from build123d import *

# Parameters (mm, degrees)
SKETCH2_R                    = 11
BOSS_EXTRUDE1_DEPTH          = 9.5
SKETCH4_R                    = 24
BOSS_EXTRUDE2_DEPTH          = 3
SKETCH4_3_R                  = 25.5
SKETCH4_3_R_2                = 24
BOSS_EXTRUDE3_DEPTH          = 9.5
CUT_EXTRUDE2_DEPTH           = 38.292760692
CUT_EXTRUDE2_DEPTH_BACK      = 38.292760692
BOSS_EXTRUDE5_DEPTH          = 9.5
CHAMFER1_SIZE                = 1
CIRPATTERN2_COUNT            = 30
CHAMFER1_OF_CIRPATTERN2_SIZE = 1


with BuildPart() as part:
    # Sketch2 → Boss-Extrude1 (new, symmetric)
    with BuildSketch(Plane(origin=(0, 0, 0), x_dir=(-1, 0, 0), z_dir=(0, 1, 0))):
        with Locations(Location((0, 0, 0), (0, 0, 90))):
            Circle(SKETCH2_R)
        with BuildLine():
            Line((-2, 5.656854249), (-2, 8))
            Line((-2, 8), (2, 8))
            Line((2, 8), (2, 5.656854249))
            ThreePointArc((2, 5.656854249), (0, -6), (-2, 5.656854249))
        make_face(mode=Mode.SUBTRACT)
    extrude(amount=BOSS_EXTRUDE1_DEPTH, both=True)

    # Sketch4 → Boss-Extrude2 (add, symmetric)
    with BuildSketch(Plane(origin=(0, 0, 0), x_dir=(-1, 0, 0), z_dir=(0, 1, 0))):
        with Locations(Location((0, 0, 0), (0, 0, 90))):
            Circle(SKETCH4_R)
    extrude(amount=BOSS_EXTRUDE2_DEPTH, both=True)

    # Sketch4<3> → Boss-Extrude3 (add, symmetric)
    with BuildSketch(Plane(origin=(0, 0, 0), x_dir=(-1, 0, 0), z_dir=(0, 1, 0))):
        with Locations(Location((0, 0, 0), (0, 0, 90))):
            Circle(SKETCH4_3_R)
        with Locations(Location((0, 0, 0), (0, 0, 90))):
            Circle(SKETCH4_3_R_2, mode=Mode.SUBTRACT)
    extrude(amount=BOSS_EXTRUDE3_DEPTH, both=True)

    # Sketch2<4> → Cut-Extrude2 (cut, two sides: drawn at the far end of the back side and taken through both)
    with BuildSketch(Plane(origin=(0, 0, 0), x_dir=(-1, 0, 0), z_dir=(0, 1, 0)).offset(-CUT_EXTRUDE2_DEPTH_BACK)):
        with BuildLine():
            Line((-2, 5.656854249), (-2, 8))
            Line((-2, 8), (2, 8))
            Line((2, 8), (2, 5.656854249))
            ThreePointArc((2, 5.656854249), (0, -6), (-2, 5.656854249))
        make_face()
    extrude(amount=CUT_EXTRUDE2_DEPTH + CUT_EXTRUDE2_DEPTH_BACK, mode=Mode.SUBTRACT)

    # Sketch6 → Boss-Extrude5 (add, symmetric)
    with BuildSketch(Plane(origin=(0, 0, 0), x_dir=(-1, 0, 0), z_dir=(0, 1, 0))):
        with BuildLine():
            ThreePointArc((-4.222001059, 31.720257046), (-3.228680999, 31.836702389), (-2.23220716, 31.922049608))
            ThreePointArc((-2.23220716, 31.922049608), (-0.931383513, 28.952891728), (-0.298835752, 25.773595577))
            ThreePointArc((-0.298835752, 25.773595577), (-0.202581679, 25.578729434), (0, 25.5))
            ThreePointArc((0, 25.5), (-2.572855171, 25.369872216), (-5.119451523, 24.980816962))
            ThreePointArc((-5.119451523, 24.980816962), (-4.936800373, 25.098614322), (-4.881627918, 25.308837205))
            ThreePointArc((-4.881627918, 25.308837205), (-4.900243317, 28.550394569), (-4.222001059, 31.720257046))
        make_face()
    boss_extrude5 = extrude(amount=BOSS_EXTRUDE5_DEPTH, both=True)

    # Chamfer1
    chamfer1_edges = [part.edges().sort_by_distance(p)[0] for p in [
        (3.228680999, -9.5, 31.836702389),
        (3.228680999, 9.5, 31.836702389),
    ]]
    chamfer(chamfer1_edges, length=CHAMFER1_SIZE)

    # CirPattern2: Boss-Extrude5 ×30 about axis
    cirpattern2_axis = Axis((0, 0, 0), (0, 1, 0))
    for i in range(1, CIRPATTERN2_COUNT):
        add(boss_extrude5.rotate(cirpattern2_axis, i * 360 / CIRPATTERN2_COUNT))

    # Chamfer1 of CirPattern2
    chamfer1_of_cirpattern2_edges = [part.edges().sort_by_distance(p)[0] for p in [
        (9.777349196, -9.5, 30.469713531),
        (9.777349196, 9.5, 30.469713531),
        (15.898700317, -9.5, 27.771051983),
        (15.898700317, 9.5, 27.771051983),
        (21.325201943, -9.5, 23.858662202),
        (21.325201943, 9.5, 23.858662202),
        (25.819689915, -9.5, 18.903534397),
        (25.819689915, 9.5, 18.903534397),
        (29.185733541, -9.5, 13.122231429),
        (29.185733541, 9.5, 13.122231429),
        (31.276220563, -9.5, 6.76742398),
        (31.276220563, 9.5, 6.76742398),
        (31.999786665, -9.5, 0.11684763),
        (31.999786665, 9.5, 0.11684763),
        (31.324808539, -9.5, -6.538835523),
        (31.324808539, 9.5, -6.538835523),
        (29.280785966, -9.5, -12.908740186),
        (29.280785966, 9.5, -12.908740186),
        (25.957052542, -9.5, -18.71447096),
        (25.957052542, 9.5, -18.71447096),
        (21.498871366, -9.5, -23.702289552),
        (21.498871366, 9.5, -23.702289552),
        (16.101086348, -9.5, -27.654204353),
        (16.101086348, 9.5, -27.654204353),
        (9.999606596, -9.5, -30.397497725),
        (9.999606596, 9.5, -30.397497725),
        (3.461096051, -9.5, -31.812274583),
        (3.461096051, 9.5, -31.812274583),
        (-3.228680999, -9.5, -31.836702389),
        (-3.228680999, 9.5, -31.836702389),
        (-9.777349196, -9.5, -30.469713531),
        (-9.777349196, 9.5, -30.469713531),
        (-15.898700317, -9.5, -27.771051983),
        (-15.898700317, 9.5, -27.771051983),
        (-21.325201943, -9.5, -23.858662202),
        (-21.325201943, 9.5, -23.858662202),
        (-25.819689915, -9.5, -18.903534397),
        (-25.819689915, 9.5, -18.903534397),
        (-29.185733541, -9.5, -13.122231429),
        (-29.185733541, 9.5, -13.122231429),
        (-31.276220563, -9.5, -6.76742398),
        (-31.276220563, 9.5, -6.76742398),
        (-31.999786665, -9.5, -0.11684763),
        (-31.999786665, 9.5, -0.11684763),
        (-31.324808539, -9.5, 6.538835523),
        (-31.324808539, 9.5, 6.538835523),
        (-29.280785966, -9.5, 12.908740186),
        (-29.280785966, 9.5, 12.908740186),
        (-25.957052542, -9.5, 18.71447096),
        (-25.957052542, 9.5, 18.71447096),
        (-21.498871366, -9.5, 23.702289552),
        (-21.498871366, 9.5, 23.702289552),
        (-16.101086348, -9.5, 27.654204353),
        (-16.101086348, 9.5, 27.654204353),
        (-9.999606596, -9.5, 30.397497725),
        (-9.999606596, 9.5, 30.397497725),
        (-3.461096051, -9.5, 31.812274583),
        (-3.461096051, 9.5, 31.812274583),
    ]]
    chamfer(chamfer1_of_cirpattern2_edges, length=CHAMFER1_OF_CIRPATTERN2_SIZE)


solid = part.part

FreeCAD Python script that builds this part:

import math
import FreeCAD as App
import Part
import Sketcher

V = App.Vector


def edges_at(feature, points):
    """Names of the edges that pass closest to the given points."""
    edges = feature.Shape.Edges
    near = lambda p: min(range(len(edges)), key=lambda i: edges[i].distToShape(Part.Vertex(*p))[0])
    return sorted({f"Edge{near(p) + 1}" for p in points})

doc = App.newDocument("Part")
body = doc.addObject("PartDesign::Body", "Body")

sketch1 = doc.addObject("Sketcher::SketchObject", "Sketch")
body.addObject(sketch1)
sketch1.AttachmentSupport = (doc.XZ_Plane, [""])
sketch1.MapMode = "FlatFace"
sketch1.addGeometry([
    Part.Circle(V(0, 0, 0), V(0, 0, 1), 11),
    Part.ArcOfCircle(Part.Circle(V(0, 0, 0), V(0, 0, 1), 6), math.radians(109), math.radians(431)),
    Part.LineSegment(V(2, 5.7, 0), V(2, 8, 0)),
    Part.LineSegment(V(2, 8, 0), V(-2, 8, 0)),
    Part.LineSegment(V(-2, 8, 0), V(-2, 5.7, 0)),
], False)
sketch1.addConstraint([
    Sketcher.Constraint("Coincident", 1, 2, 2, 1),
    Sketcher.Constraint("Coincident", 2, 2, 3, 1),
    Sketcher.Constraint("Coincident", 3, 2, 4, 1),
    Sketcher.Constraint("Coincident", 4, 2, 1, 1),
    Sketcher.Constraint("Vertical", 2),
    Sketcher.Constraint("Horizontal", 3),
    Sketcher.Constraint("Vertical", 4),
    Sketcher.Constraint("Coincident", 0, 3, -1, 1),
    Sketcher.Constraint("Coincident", 1, 3, -1, 1),
    Sketcher.Constraint("Horizontal", 1, 2, 4, 2),
    Sketcher.Constraint("Diameter", 0, 22.0),
    Sketcher.Constraint("Radius", 1, 6.0),
    Sketcher.Constraint("DistanceX", 3, 2, 3, 1, 4.0),
    Sketcher.Constraint("DistanceY", -1, 1, 2, 2, 8.0),
])
pad1 = doc.addObject("PartDesign::Pad", "Pad")
body.addObject(pad1)
pad1.Profile = sketch1
pad1.Length = 19
pad1.Midplane = True

sketch2 = doc.addObject("Sketcher::SketchObject", "Sketch001")
body.addObject(sketch2)
sketch2.AttachmentSupport = (doc.XZ_Plane, [""])
sketch2.MapMode = "FlatFace"
sketch2.addGeometry(Part.Circle(V(0, 0, 0), V(0, 0, 1), 24), False)
sketch2.addConstraint([
    Sketcher.Constraint("Coincident", 0, 3, -1, 1),
    Sketcher.Constraint("Diameter", 0, 48.0),
])
pad2 = doc.addObject("PartDesign::Pad", "Pad001")
body.addObject(pad2)
pad2.Profile = sketch2
pad2.Length = 6
pad2.Midplane = True

sketch3 = doc.addObject("Sketcher::SketchObject", "Sketch002")
body.addObject(sketch3)
sketch3.AttachmentSupport = (doc.XZ_Plane, [""])
sketch3.MapMode = "FlatFace"
sketch3.addGeometry([
    Part.Circle(V(0, 0, 0), V(0, 0, 1), 26),
    Part.Circle(V(0, 0, 0), V(0, 0, 1), 24),
], False)
sketch3.addConstraint([
    Sketcher.Constraint("Coincident", 0, 3, -1, 1),
    Sketcher.Constraint("Coincident", 1, 3, -1, 1),
    Sketcher.Constraint("Diameter", 0, 51.0),
    Sketcher.Constraint("Diameter", 1, 48.0),
])
pad3 = doc.addObject("PartDesign::Pad", "Pad002")
body.addObject(pad3)
pad3.Profile = sketch3
pad3.Length = 19
pad3.Midplane = True

sketch4 = doc.addObject("Sketcher::SketchObject", "Sketch003")
body.addObject(sketch4)
sketch4.AttachmentSupport = (doc.XZ_Plane, [""])
sketch4.MapMode = "FlatFace"
sketch4.addGeometry([
    Part.LineSegment(V(2, 8, 0), V(2, 5.7, 0)),
    Part.ArcOfCircle(Part.Circle(V(0, 0, 0), V(0, 0, 1), 6), math.radians(109), math.radians(431)),
    Part.LineSegment(V(-2, 5.7, 0), V(-2, 8, 0)),
    Part.LineSegment(V(-2, 8, 0), V(2, 8, 0)),
], False)
sketch4.addConstraint([
    Sketcher.Constraint("Coincident", 0, 2, 1, 2),
    Sketcher.Constraint("Coincident", 1, 1, 2, 1),
    Sketcher.Constraint("Coincident", 2, 2, 3, 1),
    Sketcher.Constraint("Coincident", 3, 2, 0, 1),
    Sketcher.Constraint("Vertical", 0),
    Sketcher.Constraint("Vertical", 2),
    Sketcher.Constraint("Horizontal", 3),
    Sketcher.Constraint("Coincident", 1, 3, -1, 1),
    Sketcher.Constraint("Horizontal", 0, 2, 1, 1),
    Sketcher.Constraint("Radius", 1, 6.0),
    Sketcher.Constraint("DistanceX", 3, 1, 3, 2, 4.0),
    Sketcher.Constraint("DistanceY", -1, 1, 2, 2, 8.0),
])
pocket1 = doc.addObject("PartDesign::Pocket", "Pocket")
body.addObject(pocket1)
pocket1.Profile = sketch4
pocket1.Type = "ThroughAll"
pocket1.Midplane = True

sketch5 = doc.addObject("Sketcher::SketchObject", "Sketch004")
body.addObject(sketch5)
sketch5.AttachmentSupport = (doc.XZ_Plane, [""])
sketch5.MapMode = "FlatFace"
sketch5.addGeometry([
    Part.ArcOfCircle(Part.Circle(V(0, 0, 0), V(0, 0, 1), 32), math.radians(82.42), math.radians(86)),
    Part.ArcOfCircle(Part.Circle(V(-10.02, 27.02, 0), V(0, 0, 1), 15), math.radians(-7), math.radians(18)),
    Part.ArcOfCircle(Part.Circle(V(5.18, 25.27, 0), V(0, 0, 1), 0.3), math.radians(173), math.radians(258)),
    Part.ArcOfCircle(Part.Circle(V(0, 0, 0), V(0, 0, 1), 25.5), math.radians(78.42), math.radians(90)),
    Part.ArcOfCircle(Part.Circle(V(0, 25.8, 0), V(0, 0, 1), 0.3), math.radians(-90), math.radians(-5)),
    Part.ArcOfCircle(Part.Circle(V(15.24, 24.45, 0), V(0, 0, 1), 15), math.radians(150), math.radians(175)),
], False)
sketch5.addConstraint([
    Sketcher.Constraint("Coincident", 0, 1, 1, 2),
    Sketcher.Constraint("Tangent", 1, 1, 2, 1),
    Sketcher.Constraint("Tangent", 2, 2, 3, 1),
    Sketcher.Constraint("Tangent", 3, 2, 4, 1),
    Sketcher.Constraint("Tangent", 4, 2, 5, 2),
    Sketcher.Constraint("Coincident", 5, 1, 0, 2),
    Sketcher.Constraint("Coincident", 0, 3, -1, 1),
    Sketcher.Constraint("Coincident", 3, 3, -1, 1),
    Sketcher.Constraint("Equal", 2, 4),
    Sketcher.Constraint("Equal", 1, 5),
    Sketcher.Constraint("PointOnObject", 4, 3, -2),
    Sketcher.Constraint("Radius", 0, 32.0),
    Sketcher.Constraint("Radius", 1, 15.0),
    Sketcher.Constraint("Radius", 2, 0.3),
    Sketcher.Constraint("Radius", 3, 25.5),
    Sketcher.Constraint("DistanceX", -1, 1, 0, 1, 4.222001),
    Sketcher.Constraint("DistanceY", -1, 1, 1, 3, 27.015251),
    Sketcher.Constraint("DistanceY", -1, 1, 5, 1, 31.92205),
])
pad4 = doc.addObject("PartDesign::Pad", "Pad003")
body.addObject(pad4)
pad4.Profile = sketch5
pad4.Length = 19
pad4.Midplane = True
doc.recompute()

chamfer = doc.addObject("PartDesign::Chamfer", "Chamfer")
body.addObject(chamfer)
chamfer.Base = (pad4, edges_at(pad4, [(3.229, -9.5, 31.837), (3.229, 9.5, 31.837)]))
chamfer.Size = 1
doc.recompute()

polarpattern = doc.addObject("PartDesign::PolarPattern", "PolarPattern")
body.addObject(polarpattern)
polarpattern.Originals = [pad4]
polarpattern.Axis = (doc.Y_Axis, [""])
polarpattern.Angle = 360
polarpattern.Occurrences = 30
body.Tip = polarpattern
doc.recompute()

chamfer2 = doc.addObject("PartDesign::Chamfer", "Chamfer001")
body.addObject(chamfer2)
chamfer2.Base = (polarpattern, edges_at(polarpattern, [
    (9.777, -9.5, 30.47),
    (9.777, 9.5, 30.47),
    (15.899, -9.5, 27.771),
    (15.899, 9.5, 27.771),
    (21.325, -9.5, 23.859),
    (21.325, 9.5, 23.859),
    (25.82, -9.5, 18.904),
    (25.82, 9.5, 18.904),
    (29.186, -9.5, 13.122),
    (29.186, 9.5, 13.122),
    (31.276, -9.5, 6.767),
    (31.276, 9.5, 6.767),
    (32, -9.5, 0.117),
    (32, 9.5, 0.117),
    (31.325, -9.5, -6.539),
    (31.325, 9.5, -6.539),
    (29.281, -9.5, -12.909),
    (29.281, 9.5, -12.909),
    (25.957, -9.5, -18.714),
    (25.957, 9.5, -18.714),
    (21.499, -9.5, -23.702),
    (21.499, 9.5, -23.702),
    (16.101, -9.5, -27.654),
    (16.101, 9.5, -27.654),
    (10, -9.5, -30.397),
    (10, 9.5, -30.397),
    (3.461, -9.5, -31.812),
    (3.461, 9.5, -31.812),
    (-3.229, -9.5, -31.837),
    (-3.229, 9.5, -31.837),
    (-9.777, -9.5, -30.47),
    (-9.777, 9.5, -30.47),
    (-15.899, -9.5, -27.771),
    (-15.899, 9.5, -27.771),
    (-21.325, -9.5, -23.859),
    (-21.325, 9.5, -23.859),
    (-25.82, -9.5, -18.904),
    (-25.82, 9.5, -18.904),
    (-29.186, -9.5, -13.122),
    (-29.186, 9.5, -13.122),
    (-31.276, -9.5, -6.767),
    (-31.276, 9.5, -6.767),
    (-32, -9.5, -0.117),
    (-32, 9.5, -0.117),
    (-31.325, -9.5, 6.539),
    (-31.325, 9.5, 6.539),
    (-29.281, -9.5, 12.909),
    (-29.281, 9.5, 12.909),
    (-25.957, -9.5, 18.714),
    (-25.957, 9.5, 18.714),
    (-21.499, -9.5, 23.702),
    (-21.499, 9.5, 23.702),
    (-16.101, -9.5, 27.654),
    (-16.101, 9.5, 27.654),
    (-10, -9.5, 30.397),
    (-10, 9.5, 30.397),
    (-3.461, -9.5, 31.812),
    (-3.461, 9.5, 31.812),
]))
chamfer2.Size = 1

doc.recompute()
